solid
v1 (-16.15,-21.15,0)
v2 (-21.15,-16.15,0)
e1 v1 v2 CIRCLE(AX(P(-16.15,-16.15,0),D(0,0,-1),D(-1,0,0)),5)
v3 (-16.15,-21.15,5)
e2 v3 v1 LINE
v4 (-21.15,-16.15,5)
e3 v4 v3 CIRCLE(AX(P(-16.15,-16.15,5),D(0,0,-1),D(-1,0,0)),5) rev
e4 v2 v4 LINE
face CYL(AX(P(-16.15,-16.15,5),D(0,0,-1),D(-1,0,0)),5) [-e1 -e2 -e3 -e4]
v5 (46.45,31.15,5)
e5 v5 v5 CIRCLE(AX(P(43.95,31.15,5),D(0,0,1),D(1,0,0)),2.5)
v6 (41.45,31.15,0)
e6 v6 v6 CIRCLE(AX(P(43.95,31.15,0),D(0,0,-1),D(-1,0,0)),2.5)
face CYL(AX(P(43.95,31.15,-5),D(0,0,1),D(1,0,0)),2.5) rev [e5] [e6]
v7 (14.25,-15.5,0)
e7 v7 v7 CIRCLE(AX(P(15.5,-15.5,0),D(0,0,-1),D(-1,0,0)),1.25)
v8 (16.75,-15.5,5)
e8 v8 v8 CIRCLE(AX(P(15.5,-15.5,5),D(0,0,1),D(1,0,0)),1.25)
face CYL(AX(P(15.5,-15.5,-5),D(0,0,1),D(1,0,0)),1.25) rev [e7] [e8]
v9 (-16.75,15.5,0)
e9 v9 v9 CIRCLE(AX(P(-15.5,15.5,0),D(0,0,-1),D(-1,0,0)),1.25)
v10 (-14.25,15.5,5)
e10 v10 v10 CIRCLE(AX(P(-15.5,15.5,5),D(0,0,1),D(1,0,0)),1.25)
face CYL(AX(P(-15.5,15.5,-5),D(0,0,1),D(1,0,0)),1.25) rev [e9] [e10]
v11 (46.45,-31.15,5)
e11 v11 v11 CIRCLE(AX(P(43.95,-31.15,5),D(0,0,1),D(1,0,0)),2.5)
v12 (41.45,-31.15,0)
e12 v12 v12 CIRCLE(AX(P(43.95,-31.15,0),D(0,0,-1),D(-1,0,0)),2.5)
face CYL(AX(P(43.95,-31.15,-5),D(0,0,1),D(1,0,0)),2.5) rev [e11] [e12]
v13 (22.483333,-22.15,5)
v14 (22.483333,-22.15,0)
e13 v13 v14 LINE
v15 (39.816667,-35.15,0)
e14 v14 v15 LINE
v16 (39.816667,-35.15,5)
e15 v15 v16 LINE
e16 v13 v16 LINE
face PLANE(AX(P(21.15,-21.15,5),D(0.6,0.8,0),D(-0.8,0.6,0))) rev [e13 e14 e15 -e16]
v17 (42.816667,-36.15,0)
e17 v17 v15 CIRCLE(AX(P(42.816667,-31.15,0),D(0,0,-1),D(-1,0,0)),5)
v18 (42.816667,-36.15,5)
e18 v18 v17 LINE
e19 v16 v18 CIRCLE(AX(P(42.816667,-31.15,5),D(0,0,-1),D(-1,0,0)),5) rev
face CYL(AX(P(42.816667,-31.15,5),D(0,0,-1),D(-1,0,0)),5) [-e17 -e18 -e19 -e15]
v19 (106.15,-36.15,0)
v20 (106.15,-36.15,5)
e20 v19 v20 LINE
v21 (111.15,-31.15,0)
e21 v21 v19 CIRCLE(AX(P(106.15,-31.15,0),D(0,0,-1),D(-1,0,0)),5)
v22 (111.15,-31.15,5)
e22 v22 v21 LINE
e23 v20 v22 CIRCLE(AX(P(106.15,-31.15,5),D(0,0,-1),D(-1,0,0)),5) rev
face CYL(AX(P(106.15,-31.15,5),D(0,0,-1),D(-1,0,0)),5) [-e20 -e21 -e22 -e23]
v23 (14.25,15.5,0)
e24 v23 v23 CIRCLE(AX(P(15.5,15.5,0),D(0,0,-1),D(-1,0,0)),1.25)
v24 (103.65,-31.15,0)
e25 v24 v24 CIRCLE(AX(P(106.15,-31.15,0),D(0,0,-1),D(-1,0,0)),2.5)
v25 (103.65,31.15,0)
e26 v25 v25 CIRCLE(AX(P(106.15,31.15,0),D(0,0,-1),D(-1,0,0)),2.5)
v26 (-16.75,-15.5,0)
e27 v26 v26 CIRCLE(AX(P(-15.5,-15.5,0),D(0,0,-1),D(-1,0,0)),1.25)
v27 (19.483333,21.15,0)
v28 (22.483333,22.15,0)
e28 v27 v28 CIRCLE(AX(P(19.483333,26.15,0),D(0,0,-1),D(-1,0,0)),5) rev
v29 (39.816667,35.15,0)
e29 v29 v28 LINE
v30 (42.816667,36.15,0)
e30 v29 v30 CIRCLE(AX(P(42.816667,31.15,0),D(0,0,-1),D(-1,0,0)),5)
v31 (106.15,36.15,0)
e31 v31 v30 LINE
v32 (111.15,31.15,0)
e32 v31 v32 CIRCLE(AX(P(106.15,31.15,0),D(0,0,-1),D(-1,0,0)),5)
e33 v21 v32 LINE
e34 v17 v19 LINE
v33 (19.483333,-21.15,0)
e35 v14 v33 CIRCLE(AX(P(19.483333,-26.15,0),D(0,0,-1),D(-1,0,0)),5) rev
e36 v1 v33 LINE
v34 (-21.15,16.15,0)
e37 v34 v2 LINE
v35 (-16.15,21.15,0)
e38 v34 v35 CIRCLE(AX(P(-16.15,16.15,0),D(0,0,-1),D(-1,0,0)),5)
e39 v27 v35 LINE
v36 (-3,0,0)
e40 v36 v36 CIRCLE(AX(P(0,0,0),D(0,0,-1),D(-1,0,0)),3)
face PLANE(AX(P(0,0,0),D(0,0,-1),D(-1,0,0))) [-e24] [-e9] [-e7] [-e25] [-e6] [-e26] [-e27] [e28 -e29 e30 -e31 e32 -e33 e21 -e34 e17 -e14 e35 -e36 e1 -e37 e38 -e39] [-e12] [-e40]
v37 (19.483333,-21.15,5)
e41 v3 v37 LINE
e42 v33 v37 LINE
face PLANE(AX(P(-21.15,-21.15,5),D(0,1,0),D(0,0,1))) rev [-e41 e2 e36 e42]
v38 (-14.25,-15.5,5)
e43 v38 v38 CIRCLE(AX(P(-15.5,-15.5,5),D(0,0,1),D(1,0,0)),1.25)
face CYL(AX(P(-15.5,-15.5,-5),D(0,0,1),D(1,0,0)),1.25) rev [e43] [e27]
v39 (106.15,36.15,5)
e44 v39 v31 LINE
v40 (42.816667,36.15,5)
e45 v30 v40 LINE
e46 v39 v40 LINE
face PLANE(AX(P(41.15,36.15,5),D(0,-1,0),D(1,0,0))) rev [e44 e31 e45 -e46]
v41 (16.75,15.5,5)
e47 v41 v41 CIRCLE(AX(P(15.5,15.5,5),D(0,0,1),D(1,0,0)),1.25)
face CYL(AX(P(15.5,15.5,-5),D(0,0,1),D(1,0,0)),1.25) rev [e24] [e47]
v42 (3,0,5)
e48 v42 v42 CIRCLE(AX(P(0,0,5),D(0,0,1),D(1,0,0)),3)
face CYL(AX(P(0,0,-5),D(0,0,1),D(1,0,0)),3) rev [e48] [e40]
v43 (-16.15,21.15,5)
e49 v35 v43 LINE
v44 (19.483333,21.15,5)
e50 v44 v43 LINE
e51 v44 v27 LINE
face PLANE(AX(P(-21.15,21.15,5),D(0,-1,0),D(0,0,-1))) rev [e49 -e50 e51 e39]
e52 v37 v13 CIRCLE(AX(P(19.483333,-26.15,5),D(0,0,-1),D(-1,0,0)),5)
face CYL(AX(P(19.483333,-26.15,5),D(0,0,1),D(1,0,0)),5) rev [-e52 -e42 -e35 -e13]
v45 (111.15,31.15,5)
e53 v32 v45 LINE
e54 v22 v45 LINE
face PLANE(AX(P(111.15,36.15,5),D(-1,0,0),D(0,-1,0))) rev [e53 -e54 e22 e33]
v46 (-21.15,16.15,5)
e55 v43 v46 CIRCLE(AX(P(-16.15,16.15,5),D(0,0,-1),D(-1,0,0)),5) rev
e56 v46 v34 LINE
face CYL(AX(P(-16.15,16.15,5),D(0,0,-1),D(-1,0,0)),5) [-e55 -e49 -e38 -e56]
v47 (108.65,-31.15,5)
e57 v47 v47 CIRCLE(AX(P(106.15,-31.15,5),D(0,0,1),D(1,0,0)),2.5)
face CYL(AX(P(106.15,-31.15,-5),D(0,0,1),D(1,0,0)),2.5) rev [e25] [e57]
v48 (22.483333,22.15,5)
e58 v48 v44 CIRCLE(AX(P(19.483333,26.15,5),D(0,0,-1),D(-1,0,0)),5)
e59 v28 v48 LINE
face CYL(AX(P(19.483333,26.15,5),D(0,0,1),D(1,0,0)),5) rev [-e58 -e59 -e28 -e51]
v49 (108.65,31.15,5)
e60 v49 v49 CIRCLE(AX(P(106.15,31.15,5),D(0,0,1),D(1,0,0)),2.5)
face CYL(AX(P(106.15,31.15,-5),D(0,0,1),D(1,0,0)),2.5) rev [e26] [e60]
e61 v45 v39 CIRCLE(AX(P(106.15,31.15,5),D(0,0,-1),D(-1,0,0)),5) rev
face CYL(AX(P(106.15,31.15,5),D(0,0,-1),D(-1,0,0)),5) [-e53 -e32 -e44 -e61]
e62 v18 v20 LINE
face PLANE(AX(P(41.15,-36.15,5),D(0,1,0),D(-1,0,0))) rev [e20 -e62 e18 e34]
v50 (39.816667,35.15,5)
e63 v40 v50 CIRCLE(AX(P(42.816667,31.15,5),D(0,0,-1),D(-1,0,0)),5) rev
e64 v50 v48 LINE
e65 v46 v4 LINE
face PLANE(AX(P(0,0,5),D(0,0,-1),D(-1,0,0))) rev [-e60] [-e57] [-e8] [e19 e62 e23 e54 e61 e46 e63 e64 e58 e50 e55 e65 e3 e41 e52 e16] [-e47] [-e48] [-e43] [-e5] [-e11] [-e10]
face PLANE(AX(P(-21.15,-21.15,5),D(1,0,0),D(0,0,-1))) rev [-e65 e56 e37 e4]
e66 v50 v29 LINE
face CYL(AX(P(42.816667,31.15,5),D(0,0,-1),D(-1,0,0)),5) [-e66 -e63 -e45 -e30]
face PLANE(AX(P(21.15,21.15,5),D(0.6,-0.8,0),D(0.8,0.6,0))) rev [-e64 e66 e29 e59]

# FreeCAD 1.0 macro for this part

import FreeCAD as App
import Part
import Sketcher


def edges_at(feature, points):
    """Names of the edges that pass closest to the given points."""
    edges = feature.Shape.Edges
    near = lambda p: min(range(len(edges)), key=lambda i: edges[i].distToShape(Part.Vertex(*p))[0])
    return sorted({f"Edge{near(p) + 1}" for p in points})

doc = App.newDocument("Part")
body = doc.addObject("PartDesign::Body", "Body")

# Sketch on XY plane
sketch1 = body.newObject("Sketcher::SketchObject", "Sketch")
sketch1.AttachmentSupport = (doc.getObject("XY_Plane"), [""])
sketch1.MapMode = "FlatFace"
sketch1.addGeometry(Part.LineSegment(App.Vector(41.15, 36.15, 0), App.Vector(21.15, 21.15, 0)), False)
sketch1.addGeometry(Part.LineSegment(App.Vector(21.15, 21.15, 0), App.Vector(-21.15, 21.15, 0)), False)
sketch1.addGeometry(Part.LineSegment(App.Vector(-21.15, 21.15, 0), App.Vector(-21.15, -21.15, 0)), False)
sketch1.addGeometry(Part.LineSegment(App.Vector(-21.15, -21.15, 0), App.Vector(21.15, -21.15, 0)), False)
sketch1.addGeometry(Part.LineSegment(App.Vector(21.15, -21.15, 0), App.Vector(41.15, -36.15, 0)), False)
sketch1.addGeometry(Part.LineSegment(App.Vector(41.15, -36.15, 0), App.Vector(111.15, -36.15, 0)), False)
sketch1.addGeometry(Part.LineSegment(App.Vector(111.15, -36.15, 0), App.Vector(111.15, 36.15, 0)), False)
sketch1.addGeometry(Part.LineSegment(App.Vector(111.15, 36.15, 0), App.Vector(41.15, 36.15, 0)), False)
sketch1.addConstraint(Sketcher.Constraint("Coincident", 0, 2, 1, 1))
sketch1.addConstraint(Sketcher.Constraint("Coincident", 1, 2, 2, 1))
sketch1.addConstraint(Sketcher.Constraint("Coincident", 2, 2, 3, 1))
sketch1.addConstraint(Sketcher.Constraint("Coincident", 3, 2, 4, 1))
sketch1.addConstraint(Sketcher.Constraint("Coincident", 4, 2, 5, 1))
sketch1.addConstraint(Sketcher.Constraint("Coincident", 5, 2, 6, 1))
sketch1.addConstraint(Sketcher.Constraint("Coincident", 6, 2, 7, 1))
sketch1.addConstraint(Sketcher.Constraint("Coincident", 7, 2, 0, 1))
sketch1.addConstraint(Sketcher.Constraint("Horizontal", 1))
sketch1.addConstraint(Sketcher.Constraint("Vertical", 2))
sketch1.addConstraint(Sketcher.Constraint("Horizontal", 3))
sketch1.addConstraint(Sketcher.Constraint("Horizontal", 5))
sketch1.addConstraint(Sketcher.Constraint("Vertical", 6))
sketch1.addConstraint(Sketcher.Constraint("Horizontal", 7))
sketch1.addConstraint(Sketcher.Constraint("Symmetric", 0, 2, 2, 2, -1, 1))
sketch1.addConstraint(Sketcher.Constraint("Symmetric", 4, 2, 7, 2, -1))
sketch1.addConstraint(Sketcher.Constraint("Vertical", 0, 2, 3, 2))
sketch1.addConstraint(Sketcher.Constraint("Equal", 3, 2))
sketch1.addConstraint(Sketcher.Constraint("DistanceX", 5, 1, 5, 2, 70.0))
sketch1.addConstraint(Sketcher.Constraint("Distance", 0, 25.0))
sketch1.addConstraint(Sketcher.Constraint("DistanceX", 1, 2, 1, 1, 42.3))
sketch1.addConstraint(Sketcher.Constraint("DistanceY", 6, 1, 6, 2, 72.3))
pad1 = body.newObject("PartDesign::Pad", "Pad")
pad1.Profile = sketch1
pad1.Length = 5
doc.recompute()

fillet = body.newObject("PartDesign::Fillet", "Fillet")
fillet.Base = (pad1, edges_at(pad1, [(-21.15, -21.15, 2.5)]))
fillet.Radius = 5
doc.recompute()

fillet2 = body.newObject("PartDesign::Fillet", "Fillet001")
fillet2.Base = (fillet, edges_at(fillet, [(-21.15, 21.15, 2.5)]))
fillet2.Radius = 5
doc.recompute()

fillet3 = body.newObject("PartDesign::Fillet", "Fillet002")
fillet3.Base = (fillet2, edges_at(fillet2, [(21.15, 21.15, 2.5)]))
fillet3.Radius = 5
doc.recompute()

fillet4 = body.newObject("PartDesign::Fillet", "Fillet003")
fillet4.Base = (fillet3, edges_at(fillet3, [(21.15, -21.15, 2.5)]))
fillet4.Radius = 5
doc.recompute()

fillet5 = body.newObject("PartDesign::Fillet", "Fillet004")
fillet5.Base = (fillet4, edges_at(fillet4, [(41.15, -36.15, 2.5)]))
fillet5.Radius = 5
doc.recompute()

fillet6 = body.newObject("PartDesign::Fillet", "Fillet005")
fillet6.Base = (fillet5, edges_at(fillet5, [(41.15, 36.15, 2.5)]))
fillet6.Radius = 5
doc.recompute()

fillet7 = body.newObject("PartDesign::Fillet", "Fillet006")
fillet7.Base = (fillet6, edges_at(fillet6, [(111.15, 36.15, 2.5)]))
fillet7.Radius = 5
doc.recompute()

fillet8 = body.newObject("PartDesign::Fillet", "Fillet007")
fillet8.Base = (fillet7, edges_at(fillet7, [(111.15, -36.15, 2.5)]))
fillet8.Radius = 5

# Sketch on XY plane
sketch2 = body.newObject("Sketcher::SketchObject", "Sketch001")
sketch2.AttachmentSupport = (doc.getObject("XY_Plane"), [""])
sketch2.MapMode = "FlatFace"
sketch2.AttachmentOffset = App.Placement(App.Vector(0, 0, 5), App.Rotation())
sketch2.addGeometry(Part.Circle(App.Vector(-15.5, -15.5, 0), App.Vector(0, 0, 1), 1.25), False)
sketch2.addGeometry(Part.Circle(App.Vector(-15.5, 15.5, 0), App.Vector(0, 0, 1), 1.25), False)
sketch2.addGeometry(Part.Circle(App.Vector(15.5, 15.5, 0), App.Vector(0, 0, 1), 1.25), False)
sketch2.addGeometry(Part.Circle(App.Vector(15.5, -15.5, 0), App.Vector(0, 0, 1), 1.25), False)
sketch2.addGeometry(Part.Circle(App.Vector(106.15, 31.15, 0), App.Vector(0, 0, 1), 2.5), False)
sketch2.addGeometry(Part.Circle(App.Vector(106.15, -31.15, 0), App.Vector(0, 0, 1), 2.5), False)
sketch2.addGeometry(Part.Circle(App.Vector(43.95, -31.15, 0), App.Vector(0, 0, 1), 2.5), False)
sketch2.addGeometry(Part.Circle(App.Vector(43.95, 31.15, 0), App.Vector(0, 0, 1), 2.5), False)
sketch2.addGeometry(Part.Circle(App.Vector(0, 0, 0), App.Vector(0, 0, 1), 3), False)
sketch2.addConstraint(Sketcher.Constraint("Coincident", 8, 3, -1, 1))
sketch2.addConstraint(Sketcher.Constraint("Equal", 0, 1))
sketch2.addConstraint(Sketcher.Constraint("Equal", 1, 2))
sketch2.addConstraint(Sketcher.Constraint("Equal", 2, 3))
sketch2.addConstraint(Sketcher.Constraint("Equal", 4, 5))
sketch2.addConstraint(Sketcher.Constraint("Equal", 5, 6))
sketch2.addConstraint(Sketcher.Constraint("Equal", 6, 7))
sketch2.addConstraint(Sketcher.Constraint("Symmetric", 0, 3, 2, 3, -1, 1))
sketch2.addConstraint(Sketcher.Constraint("Symmetric", 1, 3, 3, 3, -1, 1))
sketch2.addConstraint(Sketcher.Constraint("Symmetric", 1, 3, 2, 3, -2))
sketch2.addConstraint(Sketcher.Constraint("Symmetric", 4, 3, 5, 3, -1))
sketch2.addConstraint(Sketcher.Constraint("Symmetric", 6, 3, 7, 3, -1))
sketch2.addConstraint(Sketcher.Constraint("Horizontal", 5, 3, 6, 3))
sketch2.addConstraint(Sketcher.Constraint("Diameter", 4, 5.0))
sketch2.addConstraint(Sketcher.Constraint("Diameter", 8, 6.0))
sketch2.addConstraint(Sketcher.Constraint("Diameter", 0, 2.5))
sketch2.addConstraint(Sketcher.Constraint("DistanceY", 0, 3, 1, 3, 31.0))
sketch2.addConstraint(Sketcher.Constraint("DistanceX", 1, 3, 2, 3, 31.0))
sketch2.addConstraint(Sketcher.Constraint("DistanceY", 5, 3, 4, 3, 62.3))
sketch2.addConstraint(Sketcher.Constraint("DistanceX", 6, 3, 5, 3, 62.2))
sketch2.addConstraint(Sketcher.Constraint("DistanceX", -1, 1, 4, 3, 106.15))
pocket1 = body.newObject("PartDesign::Pocket", "Pocket")
pocket1.Profile = sketch2
pocket1.Length = 10

doc.recompute()
